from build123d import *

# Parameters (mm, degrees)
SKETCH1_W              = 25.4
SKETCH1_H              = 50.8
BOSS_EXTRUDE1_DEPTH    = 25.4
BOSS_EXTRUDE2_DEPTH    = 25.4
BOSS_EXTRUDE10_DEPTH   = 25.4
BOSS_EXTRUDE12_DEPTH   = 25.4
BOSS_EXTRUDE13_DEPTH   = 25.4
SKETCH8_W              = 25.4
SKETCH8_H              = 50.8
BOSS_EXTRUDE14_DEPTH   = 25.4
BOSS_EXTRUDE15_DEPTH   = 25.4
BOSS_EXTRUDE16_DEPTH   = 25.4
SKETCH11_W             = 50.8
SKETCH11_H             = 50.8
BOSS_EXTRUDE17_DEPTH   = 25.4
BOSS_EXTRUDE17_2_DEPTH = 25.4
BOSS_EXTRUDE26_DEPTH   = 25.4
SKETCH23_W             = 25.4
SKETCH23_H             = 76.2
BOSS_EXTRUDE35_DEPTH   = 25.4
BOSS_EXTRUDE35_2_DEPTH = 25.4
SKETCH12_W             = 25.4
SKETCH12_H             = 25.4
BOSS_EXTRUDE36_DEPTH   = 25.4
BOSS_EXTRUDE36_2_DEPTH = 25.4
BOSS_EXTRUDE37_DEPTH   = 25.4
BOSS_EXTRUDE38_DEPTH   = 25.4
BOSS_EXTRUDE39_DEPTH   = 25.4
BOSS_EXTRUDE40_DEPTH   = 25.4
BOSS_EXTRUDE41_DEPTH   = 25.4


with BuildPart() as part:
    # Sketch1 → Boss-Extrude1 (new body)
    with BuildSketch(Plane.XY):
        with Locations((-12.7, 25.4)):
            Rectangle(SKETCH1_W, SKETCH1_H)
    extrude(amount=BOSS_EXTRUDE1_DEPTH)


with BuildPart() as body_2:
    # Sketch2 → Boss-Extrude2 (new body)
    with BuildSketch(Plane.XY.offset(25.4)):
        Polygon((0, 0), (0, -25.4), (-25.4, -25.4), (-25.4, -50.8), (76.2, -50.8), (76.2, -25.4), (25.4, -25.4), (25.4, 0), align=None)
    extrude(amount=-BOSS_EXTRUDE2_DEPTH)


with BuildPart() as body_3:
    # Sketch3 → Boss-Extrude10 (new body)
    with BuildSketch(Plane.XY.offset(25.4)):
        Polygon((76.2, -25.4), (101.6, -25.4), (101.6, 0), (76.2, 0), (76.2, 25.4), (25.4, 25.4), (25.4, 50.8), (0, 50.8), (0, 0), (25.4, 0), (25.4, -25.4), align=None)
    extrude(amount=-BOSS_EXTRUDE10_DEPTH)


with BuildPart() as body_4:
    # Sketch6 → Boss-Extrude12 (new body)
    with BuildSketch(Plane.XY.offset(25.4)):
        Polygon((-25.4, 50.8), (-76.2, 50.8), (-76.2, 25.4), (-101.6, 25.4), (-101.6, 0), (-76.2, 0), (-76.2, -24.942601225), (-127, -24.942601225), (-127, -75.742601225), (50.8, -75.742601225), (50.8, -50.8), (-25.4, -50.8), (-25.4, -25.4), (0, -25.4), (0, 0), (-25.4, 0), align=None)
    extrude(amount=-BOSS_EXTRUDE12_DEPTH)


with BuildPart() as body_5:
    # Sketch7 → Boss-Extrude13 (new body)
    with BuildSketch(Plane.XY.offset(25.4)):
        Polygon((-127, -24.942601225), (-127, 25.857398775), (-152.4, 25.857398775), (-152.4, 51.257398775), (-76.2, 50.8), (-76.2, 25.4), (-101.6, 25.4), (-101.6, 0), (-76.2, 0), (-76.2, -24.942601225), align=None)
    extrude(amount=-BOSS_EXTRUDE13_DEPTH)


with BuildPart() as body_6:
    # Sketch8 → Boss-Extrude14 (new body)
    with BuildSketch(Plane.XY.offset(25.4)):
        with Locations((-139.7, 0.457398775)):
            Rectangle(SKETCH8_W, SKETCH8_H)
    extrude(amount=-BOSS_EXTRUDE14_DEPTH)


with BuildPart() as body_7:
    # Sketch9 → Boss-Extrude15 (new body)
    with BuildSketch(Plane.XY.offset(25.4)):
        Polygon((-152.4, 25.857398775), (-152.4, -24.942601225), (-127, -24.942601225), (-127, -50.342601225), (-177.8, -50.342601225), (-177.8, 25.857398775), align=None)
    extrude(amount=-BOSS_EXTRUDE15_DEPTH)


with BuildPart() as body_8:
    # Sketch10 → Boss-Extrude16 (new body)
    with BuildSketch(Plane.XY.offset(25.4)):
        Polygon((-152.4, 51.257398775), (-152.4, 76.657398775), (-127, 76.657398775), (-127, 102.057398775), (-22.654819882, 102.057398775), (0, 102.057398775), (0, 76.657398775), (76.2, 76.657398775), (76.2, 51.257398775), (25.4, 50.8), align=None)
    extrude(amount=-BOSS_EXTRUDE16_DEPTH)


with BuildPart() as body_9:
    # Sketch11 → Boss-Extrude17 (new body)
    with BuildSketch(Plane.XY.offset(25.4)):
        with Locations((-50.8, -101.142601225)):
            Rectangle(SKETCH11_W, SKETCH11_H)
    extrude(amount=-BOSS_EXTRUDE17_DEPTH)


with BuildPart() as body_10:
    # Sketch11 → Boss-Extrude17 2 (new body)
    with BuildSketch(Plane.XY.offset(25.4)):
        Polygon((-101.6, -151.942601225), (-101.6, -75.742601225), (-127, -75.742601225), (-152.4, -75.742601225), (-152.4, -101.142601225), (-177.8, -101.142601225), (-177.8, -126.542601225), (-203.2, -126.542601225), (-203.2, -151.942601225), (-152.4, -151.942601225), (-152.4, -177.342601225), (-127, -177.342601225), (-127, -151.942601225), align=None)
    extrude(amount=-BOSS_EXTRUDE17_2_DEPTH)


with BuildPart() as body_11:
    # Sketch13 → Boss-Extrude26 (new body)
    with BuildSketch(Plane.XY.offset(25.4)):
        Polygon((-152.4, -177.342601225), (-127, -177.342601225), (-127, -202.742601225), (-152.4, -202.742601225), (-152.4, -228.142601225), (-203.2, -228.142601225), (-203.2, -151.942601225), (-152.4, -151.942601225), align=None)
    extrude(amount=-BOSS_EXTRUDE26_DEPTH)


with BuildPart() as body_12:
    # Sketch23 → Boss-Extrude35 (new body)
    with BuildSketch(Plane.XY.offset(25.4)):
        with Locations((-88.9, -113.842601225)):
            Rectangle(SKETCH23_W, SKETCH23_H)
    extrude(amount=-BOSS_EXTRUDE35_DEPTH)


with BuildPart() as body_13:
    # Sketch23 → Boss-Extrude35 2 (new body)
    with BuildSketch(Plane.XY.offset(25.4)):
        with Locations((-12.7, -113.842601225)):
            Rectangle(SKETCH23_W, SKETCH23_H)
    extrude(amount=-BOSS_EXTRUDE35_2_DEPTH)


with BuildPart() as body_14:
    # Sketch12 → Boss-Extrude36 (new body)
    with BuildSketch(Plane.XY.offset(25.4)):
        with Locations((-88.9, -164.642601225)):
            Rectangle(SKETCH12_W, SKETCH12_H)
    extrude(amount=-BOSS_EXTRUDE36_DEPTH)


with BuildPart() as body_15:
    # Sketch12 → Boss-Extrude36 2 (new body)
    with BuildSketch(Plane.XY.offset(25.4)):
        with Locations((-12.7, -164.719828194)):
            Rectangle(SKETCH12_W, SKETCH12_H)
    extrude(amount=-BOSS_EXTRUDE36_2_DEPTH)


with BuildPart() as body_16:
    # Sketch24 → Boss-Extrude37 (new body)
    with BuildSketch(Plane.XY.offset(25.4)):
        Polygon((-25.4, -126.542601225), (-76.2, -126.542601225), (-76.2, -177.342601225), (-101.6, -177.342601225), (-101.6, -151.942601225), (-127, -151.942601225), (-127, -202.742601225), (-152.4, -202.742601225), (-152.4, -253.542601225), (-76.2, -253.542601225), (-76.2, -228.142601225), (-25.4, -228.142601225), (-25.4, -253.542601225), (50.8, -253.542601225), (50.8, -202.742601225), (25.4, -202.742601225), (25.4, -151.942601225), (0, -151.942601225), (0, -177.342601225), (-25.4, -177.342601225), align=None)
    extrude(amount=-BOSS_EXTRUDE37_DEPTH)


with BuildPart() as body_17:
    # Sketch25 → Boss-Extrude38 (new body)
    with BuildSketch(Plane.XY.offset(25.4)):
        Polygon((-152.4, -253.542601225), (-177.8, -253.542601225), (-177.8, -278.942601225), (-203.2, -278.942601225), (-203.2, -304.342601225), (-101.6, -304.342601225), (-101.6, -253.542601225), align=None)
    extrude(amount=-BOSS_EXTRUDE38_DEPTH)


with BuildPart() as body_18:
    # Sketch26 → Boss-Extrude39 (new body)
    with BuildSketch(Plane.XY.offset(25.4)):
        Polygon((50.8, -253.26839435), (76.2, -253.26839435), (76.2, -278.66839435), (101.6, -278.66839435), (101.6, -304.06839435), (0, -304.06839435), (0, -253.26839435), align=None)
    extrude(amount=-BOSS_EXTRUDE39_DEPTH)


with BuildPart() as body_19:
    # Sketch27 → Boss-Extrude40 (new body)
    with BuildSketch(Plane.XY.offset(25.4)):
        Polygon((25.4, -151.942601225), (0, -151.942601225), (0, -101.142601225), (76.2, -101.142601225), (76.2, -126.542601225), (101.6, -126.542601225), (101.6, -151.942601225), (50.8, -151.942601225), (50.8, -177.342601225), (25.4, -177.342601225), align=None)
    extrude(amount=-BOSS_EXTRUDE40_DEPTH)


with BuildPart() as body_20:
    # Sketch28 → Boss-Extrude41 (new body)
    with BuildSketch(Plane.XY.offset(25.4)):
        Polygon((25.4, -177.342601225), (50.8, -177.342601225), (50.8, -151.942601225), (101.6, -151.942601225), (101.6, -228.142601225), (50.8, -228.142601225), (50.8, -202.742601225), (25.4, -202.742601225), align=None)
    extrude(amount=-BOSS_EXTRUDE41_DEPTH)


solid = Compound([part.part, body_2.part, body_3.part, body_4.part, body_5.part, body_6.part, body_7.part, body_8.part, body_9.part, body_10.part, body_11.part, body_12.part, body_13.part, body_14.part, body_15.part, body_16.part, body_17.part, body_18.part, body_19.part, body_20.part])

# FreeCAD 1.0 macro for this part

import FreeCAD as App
import Part
import Sketcher
Q = App.Units.Quantity


def add_polygon(sketch, points):
    """Adds a closed chain of lines whose ends are joined by coincident constraints."""
    first, n = sketch.GeometryCount, len(points)
    for a, b in zip(points, points[1:] + points[:1]):
        sketch.addGeometry(Part.LineSegment(App.Vector(*a, 0), App.Vector(*b, 0)), False)
    for i in range(n):
        sketch.addConstraint(Sketcher.Constraint("Coincident", first + i, 2, first + (i + 1) % n, 1))

doc = App.newDocument("Part")
body = doc.addObject("PartDesign::Body", "Body")

sketch1 = doc.addObject("Sketcher::SketchObject", "Sketch")
body.addObject(sketch1)
sketch1.AttachmentSupport = (doc.XY_Plane, [""])
sketch1.MapMode = "FlatFace"
add_polygon(sketch1, [(-25, 51), (-25, 0), (0, 0), (0, 51)])
sketch1.addConstraint(Sketcher.Constraint("Vertical", 0))
sketch1.addConstraint(Sketcher.Constraint("Horizontal", 1))
sketch1.addConstraint(Sketcher.Constraint("Vertical", 2))
sketch1.addConstraint(Sketcher.Constraint("Horizontal", 3))
sketch1.addConstraint(Sketcher.Constraint("Coincident", 1, 2, -1, 1))
sketch1.addConstraint(Sketcher.Constraint("DistanceX", 1, 1, 1, 2, Q("1 in")))
sketch1.addConstraint(Sketcher.Constraint("DistanceY", 0, 2, 0, 1, Q("2 in")))
pad1 = doc.addObject("PartDesign::Pad", "Pad")
body.addObject(pad1)
pad1.Profile = sketch1
pad1.Length = Q("1 in")
body2 = doc.addObject("PartDesign::Body", "Body001")

sketch2 = doc.addObject("Sketcher::SketchObject", "Sketch001")
body2.addObject(sketch2)
sketch2.AttachmentSupport = (doc.getObject("XY_Plane001"), [""])
sketch2.MapMode = "FlatFace"
sketch2.AttachmentOffset = App.Placement(App.Vector(0, 0, 1 * 25.4), App.Rotation())
add_polygon(sketch2, [(0, 0), (0, -25), (-25, -25), (-25, -51), (76, -51), (76, -25), (25, -25), (25, 0)])
sketch2.addConstraint(Sketcher.Constraint("Vertical", 0))
sketch2.addConstraint(Sketcher.Constraint("Horizontal", 1))
sketch2.addConstraint(Sketcher.Constraint("Vertical", 2))
sketch2.addConstraint(Sketcher.Constraint("Horizontal", 3))
sketch2.addConstraint(Sketcher.Constraint("Vertical", 4))
sketch2.addConstraint(Sketcher.Constraint("Horizontal", 5))
sketch2.addConstraint(Sketcher.Constraint("Vertical", 6))
sketch2.addConstraint(Sketcher.Constraint("Horizontal", 7))
sketch2.addConstraint(Sketcher.Constraint("Coincident", 7, 2, -1, 1))
sketch2.addConstraint(Sketcher.Constraint("Symmetric", 1, 2, 5, 2, -2))
sketch2.addConstraint(Sketcher.Constraint("Equal", 7, 0))
sketch2.addConstraint(Sketcher.Constraint("Equal", 0, 2))
sketch2.addConstraint(Sketcher.Constraint("DistanceX", 1, 2, 1, 1, Q("1 in")))
sketch2.addConstraint(Sketcher.Constraint("DistanceX", 3, 1, 3, 2, Q("4 in")))
pad2 = doc.addObject("PartDesign::Pad", "Pad001")
body2.addObject(pad2)
pad2.Profile = sketch2
pad2.Length = Q("1 in")
pad2.Reversed = True
body3 = doc.addObject("PartDesign::Body", "Body002")

sketch3 = doc.addObject("Sketcher::SketchObject", "Sketch002")
body3.addObject(sketch3)
sketch3.AttachmentSupport = (doc.getObject("XY_Plane002"), [""])
sketch3.MapMode = "FlatFace"
sketch3.AttachmentOffset = App.Placement(App.Vector(0, 0, 1 * 25.4), App.Rotation())
add_polygon(sketch3, [(102, -25), (102, 0), (76, 0), (76, 25), (25, 25), (25, 51), (0, 51), (0, 0), (25, 0), (25, -25)])
sketch3.addConstraint(Sketcher.Constraint("Vertical", 0))
sketch3.addConstraint(Sketcher.Constraint("Horizontal", 1))
sketch3.addConstraint(Sketcher.Constraint("Vertical", 2))
sketch3.addConstraint(Sketcher.Constraint("Horizontal", 3))
sketch3.addConstraint(Sketcher.Constraint("Vertical", 4))
sketch3.addConstraint(Sketcher.Constraint("Horizontal", 5))
sketch3.addConstraint(Sketcher.Constraint("Vertical", 6))
sketch3.addConstraint(Sketcher.Constraint("Horizontal", 7))
sketch3.addConstraint(Sketcher.Constraint("Vertical", 8))
sketch3.addConstraint(Sketcher.Constraint("Horizontal", 9))
sketch3.addConstraint(Sketcher.Constraint("Coincident", 6, 2, -1, 1))
sketch3.addConstraint(Sketcher.Constraint("Symmetric", 3, 2, 8, 2, -1))
sketch3.addConstraint(Sketcher.Constraint("PointOnObject", 0, 2, -1))
sketch3.addConstraint(Sketcher.Constraint("Equal", 1, 5))
sketch3.addConstraint(Sketcher.Constraint("Equal", 7, 0))
sketch3.addConstraint(Sketcher.Constraint("Equal", 2, 4))
sketch3.addConstraint(Sketcher.Constraint("Equal", 3, 6))
sketch3.addConstraint(Sketcher.Constraint("DistanceX", 1, 2, 1, 1, Q("1 in")))
pad3 = doc.addObject("PartDesign::Pad", "Pad002")
body3.addObject(pad3)
pad3.Profile = sketch3
pad3.Length = Q("1 in")
pad3.Reversed = True
body4 = doc.addObject("PartDesign::Body", "Body003")

sketch4 = doc.addObject("Sketcher::SketchObject", "Sketch003")
body4.addObject(sketch4)
sketch4.AttachmentSupport = (doc.getObject("XY_Plane003"), [""])
sketch4.MapMode = "FlatFace"
sketch4.AttachmentOffset = App.Placement(App.Vector(0, 0, 1 * 25.4), App.Rotation())
add_polygon(sketch4, [(-25, 51), (-76, 51), (-76, 25), (-102, 25), (-102, 0), (-76, 0), (-76, -25), (-127, -25), (-127, -76), (51, -76), (51, -51), (-25, -51), (-25, -25), (0, -25), (0, 0), (-25, 0)])
sketch4.addConstraint(Sketcher.Constraint("Horizontal", 0))
sketch4.addConstraint(Sketcher.Constraint("Vertical", 1))
sketch4.addConstraint(Sketcher.Constraint("Horizontal", 2))
sketch4.addConstraint(Sketcher.Constraint("Vertical", 3))
sketch4.addConstraint(Sketcher.Constraint("Horizontal", 4))
sketch4.addConstraint(Sketcher.Constraint("Vertical", 5))
sketch4.addConstraint(Sketcher.Constraint("Horizontal", 6))
sketch4.addConstraint(Sketcher.Constraint("Vertical", 7))
sketch4.addConstraint(Sketcher.Constraint("Horizontal", 8))
sketch4.addConstraint(Sketcher.Constraint("Vertical", 9))
sketch4.addConstraint(Sketcher.Constraint("Horizontal", 10))
sketch4.addConstraint(Sketcher.Constraint("Vertical", 11))
sketch4.addConstraint(Sketcher.Constraint("Horizontal", 12))
sketch4.addConstraint(Sketcher.Constraint("Vertical", 13))
sketch4.addConstraint(Sketcher.Constraint("Horizontal", 14))
sketch4.addConstraint(Sketcher.Constraint("Vertical", 15))
sketch4.addConstraint(Sketcher.Constraint("Coincident", 13, 2, -1, 1))
sketch4.addConstraint(Sketcher.Constraint("Symmetric", 10, 2, 15, 2, -1))
sketch4.addConstraint(Sketcher.Constraint("PointOnObject", 3, 2, -1))
sketch4.addConstraint(Sketcher.Constraint("Vertical", 1, 2, 4, 2))
sketch4.addConstraint(Sketcher.Constraint("Equal", 0, 6))
sketch4.addConstraint(Sketcher.Constraint("Equal", 4, 12))
sketch4.addConstraint(Sketcher.Constraint("Equal", 14, 1))
sketch4.addConstraint(Sketcher.Constraint("Equal", 1, 3))
sketch4.addConstraint(Sketcher.Constraint("Equal", 6, 7))
sketch4.addConstraint(Sketcher.Constraint("Equal", 5, 9))
sketch4.addConstraint(Sketcher.Constraint("Equal", 3, 11))
sketch4.addConstraint(Sketcher.Constraint("DistanceX", 0, 2, 0, 1, Q("2 in")))
sketch4.addConstraint(Sketcher.Constraint("DistanceX", 8, 1, 8, 2, Q("7 in")))
sketch4.addConstraint(Sketcher.Constraint("DistanceY", 5, 2, 5, 1, Q("24.942601 mm")))
pad4 = doc.addObject("PartDesign::Pad", "Pad003")
body4.addObject(pad4)
pad4.Profile = sketch4
pad4.Length = Q("1 in")
pad4.Reversed = True
body5 = doc.addObject("PartDesign::Body", "Body004")

sketch5 = doc.addObject("Sketcher::SketchObject", "Sketch004")
body5.addObject(sketch5)
sketch5.AttachmentSupport = (doc.getObject("XY_Plane004"), [""])
sketch5.MapMode = "FlatFace"
sketch5.AttachmentOffset = App.Placement(App.Vector(0, 0, 1 * 25.4), App.Rotation())
add_polygon(sketch5, [(-127, 26), (-127, -25), (-76, -25), (-76, 0), (-102, 0), (-102, 25), (-76, 25), (-76, 51), (-152, 51), (-152, 26)])
sketch5.addConstraint(Sketcher.Constraint("Vertical", 0))
sketch5.addConstraint(Sketcher.Constraint("Horizontal", 1))
sketch5.addConstraint(Sketcher.Constraint("Vertical", 2))
sketch5.addConstraint(Sketcher.Constraint("Horizontal", 3))
sketch5.addConstraint(Sketcher.Constraint("Vertical", 4))
sketch5.addConstraint(Sketcher.Constraint("Horizontal", 5))
sketch5.addConstraint(Sketcher.Constraint("Vertical", 6))
sketch5.addConstraint(Sketcher.Constraint("Vertical", 8))
sketch5.addConstraint(Sketcher.Constraint("Horizontal", 9))
sketch5.addConstraint(Sketcher.Constraint("PointOnObject", 2, 2, -1))
sketch5.addConstraint(Sketcher.Constraint("Vertical", 2, 2, 5, 2))
sketch5.addConstraint(Sketcher.Constraint("Equal", 5, 9))
sketch5.addConstraint(Sketcher.Constraint("Equal", 1, 0))
sketch5.addConstraint(Sketcher.Constraint("Equal", 9, 4))
sketch5.addConstraint(Sketcher.Constraint("Equal", 4, 6))
sketch5.addConstraint(Sketcher.Constraint("Equal", 6, 8))
sketch5.addConstraint(Sketcher.Constraint("DistanceX", 1, 1, 1, 2, Q("2 in")))
sketch5.addConstraint(Sketcher.Constraint("DistanceX", 3, 2, 3, 1, Q("1 in")))
sketch5.addConstraint(Sketcher.Constraint("DistanceX", 0, 2, -1, 1, Q("5 in")))
sketch5.addConstraint(Sketcher.Constraint("DistanceY", 2, 1, 2, 2, Q("24.942601 mm")))
pad5 = doc.addObject("PartDesign::Pad", "Pad004")
body5.addObject(pad5)
pad5.Profile = sketch5
pad5.Length = Q("1 in")
pad5.Reversed = True
body6 = doc.addObject("PartDesign::Body", "Body005")

sketch6 = doc.addObject("Sketcher::SketchObject", "Sketch005")
body6.addObject(sketch6)
sketch6.AttachmentSupport = (doc.getObject("XY_Plane005"), [""])
sketch6.MapMode = "FlatFace"
sketch6.AttachmentOffset = App.Placement(App.Vector(0, 0, 1 * 25.4), App.Rotation())
add_polygon(sketch6, [(-152, 26), (-152, -25), (-127, -25), (-127, 26)])
sketch6.addConstraint(Sketcher.Constraint("Vertical", 0))
sketch6.addConstraint(Sketcher.Constraint("Horizontal", 1))
sketch6.addConstraint(Sketcher.Constraint("Vertical", 2))
sketch6.addConstraint(Sketcher.Constraint("Horizontal", 3))
sketch6.addConstraint(Sketcher.Constraint("DistanceX", 1, 1, 1, 2, Q("1 in")))
sketch6.addConstraint(Sketcher.Constraint("DistanceY", 0, 2, 0, 1, Q("2 in")))
sketch6.addConstraint(Sketcher.Constraint("DistanceX", 0, 2, -1, 1, Q("6 in")))
sketch6.addConstraint(Sketcher.Constraint("DistanceY", 0, 2, -1, 1, Q("24.942601 mm")))
pad6 = doc.addObject("PartDesign::Pad", "Pad005")
body6.addObject(pad6)
pad6.Profile = sketch6
pad6.Length = Q("1 in")
pad6.Reversed = True
body7 = doc.addObject("PartDesign::Body", "Body006")

sketch7 = doc.addObject("Sketcher::SketchObject", "Sketch006")
body7.addObject(sketch7)
sketch7.AttachmentSupport = (doc.getObject("XY_Plane006"), [""])
sketch7.MapMode = "FlatFace"
sketch7.AttachmentOffset = App.Placement(App.Vector(0, 0, 1 * 25.4), App.Rotation())
add_polygon(sketch7, [(-152, -25), (-152, 26), (-178, 26), (-178, -50), (-127, -50), (-127, -25)])
sketch7.addConstraint(Sketcher.Constraint("Vertical", 0))
sketch7.addConstraint(Sketcher.Constraint("Horizontal", 1))
sketch7.addConstraint(Sketcher.Constraint("Vertical", 2))
sketch7.addConstraint(Sketcher.Constraint("Horizontal", 3))
sketch7.addConstraint(Sketcher.Constraint("Vertical", 4))
sketch7.addConstraint(Sketcher.Constraint("Horizontal", 5))
sketch7.addConstraint(Sketcher.Constraint("Equal", 1, 5))
sketch7.addConstraint(Sketcher.Constraint("Equal", 3, 0))
sketch7.addConstraint(Sketcher.Constraint("Equal", 5, 4))
sketch7.addConstraint(Sketcher.Constraint("DistanceX", 1, 2, 1, 1, Q("1 in")))
sketch7.addConstraint(Sketcher.Constraint("DistanceX", 0, 2, -1, 1, Q("6 in")))
sketch7.addConstraint(Sketcher.Constraint("DistanceY", -1, 1, 0, 2, Q("25.857399 mm")))
pad7 = doc.addObject("PartDesign::Pad", "Pad006")
body7.addObject(pad7)
pad7.Profile = sketch7
pad7.Length = Q("1 in")
pad7.Reversed = True
body8 = doc.addObject("PartDesign::Body", "Body007")

sketch8 = doc.addObject("Sketcher::SketchObject", "Sketch007")
body8.addObject(sketch8)
sketch8.AttachmentSupport = (doc.getObject("XY_Plane007"), [""])
sketch8.MapMode = "FlatFace"
sketch8.AttachmentOffset = App.Placement(App.Vector(0, 0, 1 * 25.4), App.Rotation())
add_polygon(sketch8, [(-152, 77), (-152, 51), (25, 51), (76, 51), (76, 77), (0, 77), (0, 102), (-127, 102), (-127, 77)])
sketch8.addConstraint(Sketcher.Constraint("Vertical", 0))
sketch8.addConstraint(Sketcher.Constraint("Vertical", 3))
sketch8.addConstraint(Sketcher.Constraint("Horizontal", 4))
sketch8.addConstraint(Sketcher.Constraint("Vertical", 5))
sketch8.addConstraint(Sketcher.Constraint("Horizontal", 6))
sketch8.addConstraint(Sketcher.Constraint("Vertical", 7))
sketch8.addConstraint(Sketcher.Constraint("Horizontal", 8))
sketch8.addConstraint(Sketcher.Constraint("PointOnObject", 4, 2, -2))
sketch8.addConstraint(Sketcher.Constraint("Horizontal", 0, 2, 2, 2))
sketch8.addConstraint(Sketcher.Constraint("Horizontal", 4, 2, 7, 2))
sketch8.addConstraint(Sketcher.Constraint("Equal", 8, 0))
sketch8.addConstraint(Sketcher.Constraint("Equal", 3, 5))
sketch8.addConstraint(Sketcher.Constraint("DistanceX", 4, 2, 4, 1, Q("3 in")))
sketch8.addConstraint(Sketcher.Constraint("DistanceX", 6, 2, 6, 1, Q("5 in")))
sketch8.addConstraint(Sketcher.Constraint("DistanceX", 8, 2, 8, 1, Q("1 in")))
sketch8.addConstraint(Sketcher.Constraint("DistanceX", -1, 1, 1, 2, Q("1 in")))
sketch8.addConstraint(Sketcher.Constraint("DistanceY", -1, 1, 1, 2, Q("2 in")))
sketch8.addConstraint(Sketcher.Constraint("DistanceY", -1, 1, 0, 2, Q("51.257399 mm")))
pad8 = doc.addObject("PartDesign::Pad", "Pad007")
body8.addObject(pad8)
pad8.Profile = sketch8
pad8.Length = Q("1 in")
pad8.Reversed = True
body9 = doc.addObject("PartDesign::Body", "Body008")

sketch9 = doc.addObject("Sketcher::SketchObject", "Sketch008")
body9.addObject(sketch9)
sketch9.AttachmentSupport = (doc.getObject("XY_Plane008"), [""])
sketch9.MapMode = "FlatFace"
sketch9.AttachmentOffset = App.Placement(App.Vector(0, 0, 1 * 25.4), App.Rotation())
add_polygon(sketch9, [(-76, -76), (-76, -127), (-25, -127), (-25, -76)])
sketch9.addConstraint(Sketcher.Constraint("Vertical", 0))
sketch9.addConstraint(Sketcher.Constraint("Horizontal", 1))
sketch9.addConstraint(Sketcher.Constraint("Vertical", 2))
sketch9.addConstraint(Sketcher.Constraint("Horizontal", 3))
sketch9.addConstraint(Sketcher.Constraint("Equal", 3, 0))
sketch9.addConstraint(Sketcher.Constraint("DistanceX", 1, 1, 1, 2, Q("2 in")))
sketch9.addConstraint(Sketcher.Constraint("DistanceX", 0, 2, -1, 1, Q("3 in")))
sketch9.addConstraint(Sketcher.Constraint("DistanceY", 0, 2, -1, 1, Q("126.542601 mm")))
pad9 = doc.addObject("PartDesign::Pad", "Pad008")
body9.addObject(pad9)
pad9.Profile = sketch9
pad9.Length = Q("1 in")
pad9.Reversed = True
body10 = doc.addObject("PartDesign::Body", "Body009")

sketch10 = doc.addObject("Sketcher::SketchObject", "Sketch009")
body10.addObject(sketch10)
sketch10.AttachmentSupport = (doc.getObject("XY_Plane009"), [""])
sketch10.MapMode = "FlatFace"
sketch10.AttachmentOffset = App.Placement(App.Vector(0, 0, 1 * 25.4), App.Rotation())
add_polygon(sketch10, [(-102, -152), (-102, -76), (-152, -76), (-152, -101), (-178, -101), (-178, -127), (-203, -127), (-203, -152), (-152, -152), (-152, -177), (-127, -177), (-127, -152)])
sketch10.addConstraint(Sketcher.Constraint("Vertical", 0))
sketch10.addConstraint(Sketcher.Constraint("Horizontal", 1))
sketch10.addConstraint(Sketcher.Constraint("Vertical", 2))
sketch10.addConstraint(Sketcher.Constraint("Horizontal", 3))
sketch10.addConstraint(Sketcher.Constraint("Vertical", 4))
sketch10.addConstraint(Sketcher.Constraint("Horizontal", 5))
sketch10.addConstraint(Sketcher.Constraint("Vertical", 6))
sketch10.addConstraint(Sketcher.Constraint("Horizontal", 7))
sketch10.addConstraint(Sketcher.Constraint("Vertical", 8))
sketch10.addConstraint(Sketcher.Constraint("Horizontal", 9))
sketch10.addConstraint(Sketcher.Constraint("Vertical", 10))
sketch10.addConstraint(Sketcher.Constraint("Horizontal", 11))
sketch10.addConstraint(Sketcher.Constraint("Horizontal", 7, 2, 10, 2))
sketch10.addConstraint(Sketcher.Constraint("Vertical", 2, 2, 7, 2))
sketch10.addConstraint(Sketcher.Constraint("Equal", 3, 5))
sketch10.addConstraint(Sketcher.Constraint("Equal", 1, 7))
sketch10.addConstraint(Sketcher.Constraint("Equal", 5, 9))
sketch10.addConstraint(Sketcher.Constraint("Equal", 11, 2))
sketch10.addConstraint(Sketcher.Constraint("Equal", 2, 4))
sketch10.addConstraint(Sketcher.Constraint("Equal", 4, 6))
sketch10.addConstraint(Sketcher.Constraint("Equal", 6, 8))
sketch10.addConstraint(Sketcher.Constraint("DistanceX", 1, 2, 1, 1, Q("2 in")))
sketch10.addConstraint(Sketcher.Constraint("DistanceX", 0, 2, -1, 1, Q("4 in")))
sketch10.addConstraint(Sketcher.Constraint("DistanceY", 0, 2, -1, 1, Q("75.742601 mm")))
pad10 = doc.addObject("PartDesign::Pad", "Pad009")
body10.addObject(pad10)
pad10.Profile = sketch10
pad10.Length = Q("1 in")
pad10.Reversed = True
body11 = doc.addObject("PartDesign::Body", "Body010")

sketch11 = doc.addObject("Sketcher::SketchObject", "Sketch010")
body11.addObject(sketch11)
sketch11.AttachmentSupport = (doc.getObject("XY_Plane010"), [""])
sketch11.MapMode = "FlatFace"
sketch11.AttachmentOffset = App.Placement(App.Vector(0, 0, 1 * 25.4), App.Rotation())
add_polygon(sketch11, [(-127, -177), (-152, -177), (-152, -152), (-203, -152), (-203, -228), (-152, -228), (-152, -203), (-127, -203)])
sketch11.addConstraint(Sketcher.Constraint("Horizontal", 0))
sketch11.addConstraint(Sketcher.Constraint("Vertical", 1))
sketch11.addConstraint(Sketcher.Constraint("Horizontal", 2))
sketch11.addConstraint(Sketcher.Constraint("Vertical", 3))
sketch11.addConstraint(Sketcher.Constraint("Horizontal", 4))
sketch11.addConstraint(Sketcher.Constraint("Vertical", 5))
sketch11.addConstraint(Sketcher.Constraint("Horizontal", 6))
sketch11.addConstraint(Sketcher.Constraint("Vertical", 7))
sketch11.addConstraint(Sketcher.Constraint("Vertical", 1, 2, 4, 2))
sketch11.addConstraint(Sketcher.Constraint("Equal", 6, 1))
sketch11.addConstraint(Sketcher.Constraint("Equal", 1, 5))
sketch11.addConstraint(Sketcher.Constraint("Equal", 5, 7))
sketch11.addConstraint(Sketcher.Constraint("DistanceX", 0, 2, 0, 1, Q("1 in")))
sketch11.addConstraint(Sketcher.Constraint("DistanceX", 2, 2, 2, 1, Q("2 in")))
sketch11.addConstraint(Sketcher.Constraint("DistanceX", 0, 2, -1, 1, Q("6 in")))
sketch11.addConstraint(Sketcher.Constraint("DistanceY", 0, 2, -1, 1, Q("177.342601 mm")))
pad11 = doc.addObject("PartDesign::Pad", "Pad010")
body11.addObject(pad11)
pad11.Profile = sketch11
pad11.Length = Q("1 in")
pad11.Reversed = True
body12 = doc.addObject("PartDesign::Body", "Body011")

sketch12 = doc.addObject("Sketcher::SketchObject", "Sketch011")
body12.addObject(sketch12)
sketch12.AttachmentSupport = (doc.getObject("XY_Plane011"), [""])
sketch12.MapMode = "FlatFace"
sketch12.AttachmentOffset = App.Placement(App.Vector(0, 0, 1 * 25.4), App.Rotation())
add_polygon(sketch12, [(-102, -76), (-102, -152), (-76, -152), (-76, -76)])
sketch12.addConstraint(Sketcher.Constraint("Vertical", 0))
sketch12.addConstraint(Sketcher.Constraint("Horizontal", 1))
sketch12.addConstraint(Sketcher.Constraint("Vertical", 2))
sketch12.addConstraint(Sketcher.Constraint("Horizontal", 3))
sketch12.addConstraint(Sketcher.Constraint("DistanceX", 1, 1, 1, 2, Q("1 in")))
sketch12.addConstraint(Sketcher.Constraint("DistanceY", 0, 2, 0, 1, Q("3 in")))
sketch12.addConstraint(Sketcher.Constraint("DistanceX", 0, 2, -1, 1, Q("4 in")))
sketch12.addConstraint(Sketcher.Constraint("DistanceY", 0, 2, -1, 1, Q("151.942601 mm")))
pad12 = doc.addObject("PartDesign::Pad", "Pad011")
body12.addObject(pad12)
pad12.Profile = sketch12
pad12.Length = Q("1 in")
pad12.Reversed = True
body13 = doc.addObject("PartDesign::Body", "Body012")

sketch13 = doc.addObject("Sketcher::SketchObject", "Sketch012")
body13.addObject(sketch13)
sketch13.AttachmentSupport = (doc.getObject("XY_Plane012"), [""])
sketch13.MapMode = "FlatFace"
sketch13.AttachmentOffset = App.Placement(App.Vector(0, 0, 1 * 25.4), App.Rotation())
add_polygon(sketch13, [(-25, -76), (-25, -152), (0, -152), (0, -76)])
sketch13.addConstraint(Sketcher.Constraint("Vertical", 0))
sketch13.addConstraint(Sketcher.Constraint("Horizontal", 1))
sketch13.addConstraint(Sketcher.Constraint("Vertical", 2))
sketch13.addConstraint(Sketcher.Constraint("Horizontal", 3))
sketch13.addConstraint(Sketcher.Constraint("PointOnObject", 1, 2, -2))
sketch13.addConstraint(Sketcher.Constraint("DistanceX", 1, 1, 1, 2, Q("1 in")))
sketch13.addConstraint(Sketcher.Constraint("DistanceY", 0, 2, 0, 1, Q("3 in")))
sketch13.addConstraint(Sketcher.Constraint("DistanceY", 0, 2, -1, 1, Q("151.942601 mm")))
pad13 = doc.addObject("PartDesign::Pad", "Pad012")
body13.addObject(pad13)
pad13.Profile = sketch13
pad13.Length = Q("1 in")
pad13.Reversed = True
body14 = doc.addObject("PartDesign::Body", "Body013")

sketch14 = doc.addObject("Sketcher::SketchObject", "Sketch013")
body14.addObject(sketch14)
sketch14.AttachmentSupport = (doc.getObject("XY_Plane013"), [""])
sketch14.MapMode = "FlatFace"
sketch14.AttachmentOffset = App.Placement(App.Vector(0, 0, 1 * 25.4), App.Rotation())
add_polygon(sketch14, [(-102, -152), (-102, -177), (-76, -177), (-76, -152)])
sketch14.addConstraint(Sketcher.Constraint("Vertical", 0))
sketch14.addConstraint(Sketcher.Constraint("Horizontal", 1))
sketch14.addConstraint(Sketcher.Constraint("Vertical", 2))
sketch14.addConstraint(Sketcher.Constraint("Horizontal", 3))
sketch14.addConstraint(Sketcher.Constraint("Equal", 3, 0))
sketch14.addConstraint(Sketcher.Constraint("DistanceX", 1, 1, 1, 2, Q("1 in")))
sketch14.addConstraint(Sketcher.Constraint("DistanceX", 0, 2, -1, 1, Q("4 in")))
sketch14.addConstraint(Sketcher.Constraint("DistanceY", 0, 2, -1, 1, Q("177.342601 mm")))
pad14 = doc.addObject("PartDesign::Pad", "Pad013")
body14.addObject(pad14)
pad14.Profile = sketch14
pad14.Length = Q("1 in")
pad14.Reversed = True
body15 = doc.addObject("PartDesign::Body", "Body014")

sketch15 = doc.addObject("Sketcher::SketchObject", "Sketch014")
body15.addObject(sketch15)
sketch15.AttachmentSupport = (doc.getObject("XY_Plane014"), [""])
sketch15.MapMode = "FlatFace"
sketch15.AttachmentOffset = App.Placement(App.Vector(0, 0, 1 * 25.4), App.Rotation())
add_polygon(sketch15, [(-25, -152), (-25, -177), (0, -177), (0, -152)])
sketch15.addConstraint(Sketcher.Constraint("Vertical", 0))
sketch15.addConstraint(Sketcher.Constraint("Horizontal", 1))
sketch15.addConstraint(Sketcher.Constraint("Vertical", 2))
sketch15.addConstraint(Sketcher.Constraint("Horizontal", 3))
sketch15.addConstraint(Sketcher.Constraint("PointOnObject", 1, 2, -2))
sketch15.addConstraint(Sketcher.Constraint("Equal", 3, 0))
sketch15.addConstraint(Sketcher.Constraint("DistanceX", 1, 1, 1, 2, Q("1 in")))
sketch15.addConstraint(Sketcher.Constraint("DistanceY", 0, 2, -1, 1, Q("177.419828 mm")))
pad15 = doc.addObject("PartDesign::Pad", "Pad014")
body15.addObject(pad15)
pad15.Profile = sketch15
pad15.Length = Q("1 in")
pad15.Reversed = True
body16 = doc.addObject("PartDesign::Body", "Body015")

sketch16 = doc.addObject("Sketcher::SketchObject", "Sketch015")
body16.addObject(sketch16)
sketch16.AttachmentSupport = (doc.getObject("XY_Plane015"), [""])
sketch16.MapMode = "FlatFace"
sketch16.AttachmentOffset = App.Placement(App.Vector(0, 0, 1 * 25.4), App.Rotation())
add_polygon(sketch16, [(-25, -127), (-76, -127), (-76, -177), (-102, -177), (-102, -152), (-127, -152), (-127, -203), (-152, -203), (-152, -254), (-76, -254), (-76, -228), (-25, -228), (-25, -254), (51, -254), (51, -203), (25, -203), (25, -152), (0, -152), (0, -177), (-25, -177)])
sketch16.addConstraint(Sketcher.Constraint("Horizontal", 0))
sketch16.addConstraint(Sketcher.Constraint("Vertical", 1))
sketch16.addConstraint(Sketcher.Constraint("Horizontal", 2))
sketch16.addConstraint(Sketcher.Constraint("Vertical", 3))
sketch16.addConstraint(Sketcher.Constraint("Horizontal", 4))
sketch16.addConstraint(Sketcher.Constraint("Vertical", 5))
sketch16.addConstraint(Sketcher.Constraint("Horizontal", 6))
sketch16.addConstraint(Sketcher.Constraint("Vertical", 7))
sketch16.addConstraint(Sketcher.Constraint("Horizontal", 8))
sketch16.addConstraint(Sketcher.Constraint("Vertical", 9))
sketch16.addConstraint(Sketcher.Constraint("Horizontal", 10))
sketch16.addConstraint(Sketcher.Constraint("Vertical", 11))
sketch16.addConstraint(Sketcher.Constraint("Horizontal", 12))
sketch16.addConstraint(Sketcher.Constraint("Vertical", 13))
sketch16.addConstraint(Sketcher.Constraint("Horizontal", 14))
sketch16.addConstraint(Sketcher.Constraint("Vertical", 15))
sketch16.addConstraint(Sketcher.Constraint("Horizontal", 16))
sketch16.addConstraint(Sketcher.Constraint("Vertical", 17))
sketch16.addConstraint(Sketcher.Constraint("Horizontal", 18))
sketch16.addConstraint(Sketcher.Constraint("Vertical", 19))
sketch16.addConstraint(Sketcher.Constraint("PointOnObject", 16, 2, -2))
sketch16.addConstraint(Sketcher.Constraint("Horizontal", 8, 2, 11, 2))
sketch16.addConstraint(Sketcher.Constraint("Horizontal", 6, 2, 13, 2))
sketch16.addConstraint(Sketcher.Constraint("Horizontal", 4, 2, 15, 2))
sketch16.addConstraint(Sketcher.Constraint("Horizontal", 2, 2, 17, 2))
sketch16.addConstraint(Sketcher.Constraint("Vertical", 1, 2, 8, 2))
sketch16.addConstraint(Sketcher.Constraint("Vertical", 11, 2, 18, 2))
sketch16.addConstraint(Sketcher.Constraint("Equal", 2, 4))
sketch16.addConstraint(Sketcher.Constraint("Equal", 4, 6))
sketch16.addConstraint(Sketcher.Constraint("Equal", 8, 12))
sketch16.addConstraint(Sketcher.Constraint("Equal", 6, 14))
sketch16.addConstraint(Sketcher.Constraint("Equal", 14, 16))
sketch16.addConstraint(Sketcher.Constraint("Equal", 10, 1))
sketch16.addConstraint(Sketcher.Constraint("Equal", 18, 3))
sketch16.addConstraint(Sketcher.Constraint("Equal", 1, 5))
sketch16.addConstraint(Sketcher.Constraint("Equal", 5, 7))
sketch16.addConstraint(Sketcher.Constraint("Equal", 3, 9))
sketch16.addConstraint(Sketcher.Constraint("DistanceX", 0, 2, 0, 1, Q("2 in")))
sketch16.addConstraint(Sketcher.Constraint("DistanceX", 2, 2, 2, 1, Q("1 in")))
sketch16.addConstraint(Sketcher.Constraint("DistanceY", 0, 2, -1, 1, Q("126.542601 mm")))
pad16 = doc.addObject("PartDesign::Pad", "Pad015")
body16.addObject(pad16)
pad16.Profile = sketch16
pad16.Length = Q("1 in")
pad16.Reversed = True
body17 = doc.addObject("PartDesign::Body", "Body016")

sketch17 = doc.addObject("Sketcher::SketchObject", "Sketch016")
body17.addObject(sketch17)
sketch17.AttachmentSupport = (doc.getObject("XY_Plane016"), [""])
sketch17.MapMode = "FlatFace"
sketch17.AttachmentOffset = App.Placement(App.Vector(0, 0, 1 * 25.4), App.Rotation())
add_polygon(sketch17, [(-178, -254), (-178, -279), (-203, -279), (-203, -304), (-102, -304), (-102, -254)])
sketch17.addConstraint(Sketcher.Constraint("Vertical", 0))
sketch17.addConstraint(Sketcher.Constraint("Horizontal", 1))
sketch17.addConstraint(Sketcher.Constraint("Vertical", 2))
sketch17.addConstraint(Sketcher.Constraint("Horizontal", 3))
sketch17.addConstraint(Sketcher.Constraint("Vertical", 4))
sketch17.addConstraint(Sketcher.Constraint("Horizontal", 5))
sketch17.addConstraint(Sketcher.Constraint("Equal", 1, 0))
sketch17.addConstraint(Sketcher.Constraint("Equal", 0, 2))
sketch17.addConstraint(Sketcher.Constraint("DistanceX", 1, 2, 1, 1, Q("1 in")))
sketch17.addConstraint(Sketcher.Constraint("DistanceX", 3, 1, 3, 2, Q("4 in")))
sketch17.addConstraint(Sketcher.Constraint("DistanceX", 0, 2, -1, 1, Q("7 in")))
sketch17.addConstraint(Sketcher.Constraint("DistanceY", 0, 2, -1, 1, Q("278.942601 mm")))
pad17 = doc.addObject("PartDesign::Pad", "Pad016")
body17.addObject(pad17)
pad17.Profile = sketch17
pad17.Length = Q("1 in")
pad17.Reversed = True
body18 = doc.addObject("PartDesign::Body", "Body017")

sketch18 = doc.addObject("Sketcher::SketchObject", "Sketch017")
body18.addObject(sketch18)
sketch18.AttachmentSupport = (doc.getObject("XY_Plane017"), [""])
sketch18.MapMode = "FlatFace"
sketch18.AttachmentOffset = App.Placement(App.Vector(0, 0, 1 * 25.4), App.Rotation())
add_polygon(sketch18, [(76, -253), (0, -253), (0, -304), (102, -304), (102, -279), (76, -279)])
sketch18.addConstraint(Sketcher.Constraint("Horizontal", 0))
sketch18.addConstraint(Sketcher.Constraint("Vertical", 1))
sketch18.addConstraint(Sketcher.Constraint("Horizontal", 2))
sketch18.addConstraint(Sketcher.Constraint("Vertical", 3))
sketch18.addConstraint(Sketcher.Constraint("Horizontal", 4))
sketch18.addConstraint(Sketcher.Constraint("Vertical", 5))
sketch18.addConstraint(Sketcher.Constraint("PointOnObject", 0, 2, -2))
sketch18.addConstraint(Sketcher.Constraint("Equal", 4, 3))
sketch18.addConstraint(Sketcher.Constraint("Equal", 3, 5))
sketch18.addConstraint(Sketcher.Constraint("DistanceX", 0, 2, 0, 1, Q("3 in")))
sketch18.addConstraint(Sketcher.Constraint("DistanceX", 2, 1, 2, 2, Q("4 in")))
sketch18.addConstraint(Sketcher.Constraint("DistanceY", 0, 2, -1, 1, Q("253.268394 mm")))
pad18 = doc.addObject("PartDesign::Pad", "Pad017")
body18.addObject(pad18)
pad18.Profile = sketch18
pad18.Length = Q("1 in")
pad18.Reversed = True
body19 = doc.addObject("PartDesign::Body", "Body018")

sketch19 = doc.addObject("Sketcher::SketchObject", "Sketch018")
body19.addObject(sketch19)
sketch19.AttachmentSupport = (doc.getObject("XY_Plane018"), [""])
sketch19.MapMode = "FlatFace"
sketch19.AttachmentOffset = App.Placement(App.Vector(0, 0, 1 * 25.4), App.Rotation())
add_polygon(sketch19, [(0, -152), (25, -152), (25, -177), (51, -177), (51, -152), (102, -152), (102, -127), (76, -127), (76, -101), (0, -101)])
sketch19.addConstraint(Sketcher.Constraint("Horizontal", 0))
sketch19.addConstraint(Sketcher.Constraint("Vertical", 1))
sketch19.addConstraint(Sketcher.Constraint("Horizontal", 2))
sketch19.addConstraint(Sketcher.Constraint("Vertical", 3))
sketch19.addConstraint(Sketcher.Constraint("Horizontal", 4))
sketch19.addConstraint(Sketcher.Constraint("Vertical", 5))
sketch19.addConstraint(Sketcher.Constraint("Horizontal", 6))
sketch19.addConstraint(Sketcher.Constraint("Vertical", 7))
sketch19.addConstraint(Sketcher.Constraint("Horizontal", 8))
sketch19.addConstraint(Sketcher.Constraint("Vertical", 9))
sketch19.addConstraint(Sketcher.Constraint("PointOnObject", 8, 2, -2))
sketch19.addConstraint(Sketcher.Constraint("Horizontal", 0, 2, 3, 2))
sketch19.addConstraint(Sketcher.Constraint("Equal", 0, 2))
sketch19.addConstraint(Sketcher.Constraint("Equal", 2, 6))
sketch19.addConstraint(Sketcher.Constraint("Equal", 6, 1))
sketch19.addConstraint(Sketcher.Constraint("Equal", 3, 5))
sketch19.addConstraint(Sketcher.Constraint("Equal", 5, 7))
sketch19.addConstraint(Sketcher.Constraint("Equal", 4, 9))
sketch19.addConstraint(Sketcher.Constraint("DistanceX", 0, 1, 0, 2, Q("1 in")))
sketch19.addConstraint(Sketcher.Constraint("DistanceY", 0, 2, -1, 1, Q("151.942601 mm")))
pad19 = doc.addObject("PartDesign::Pad", "Pad018")
body19.addObject(pad19)
pad19.Profile = sketch19
pad19.Length = Q("1 in")
pad19.Reversed = True
body20 = doc.addObject("PartDesign::Body", "Body019")

sketch20 = doc.addObject("Sketcher::SketchObject", "Sketch019")
body20.addObject(sketch20)
sketch20.AttachmentSupport = (doc.getObject("XY_Plane019"), [""])
sketch20.MapMode = "FlatFace"
sketch20.AttachmentOffset = App.Placement(App.Vector(0, 0, 1 * 25.4), App.Rotation())
add_polygon(sketch20, [(51, -177), (25, -177), (25, -203), (51, -203), (51, -228), (102, -228), (102, -152), (51, -152)])
sketch20.addConstraint(Sketcher.Constraint("Horizontal", 0))
sketch20.addConstraint(Sketcher.Constraint("Vertical", 1))
sketch20.addConstraint(Sketcher.Constraint("Horizontal", 2))
sketch20.addConstraint(Sketcher.Constraint("Vertical", 3))
sketch20.addConstraint(Sketcher.Constraint("Horizontal", 4))
sketch20.addConstraint(Sketcher.Constraint("Vertical", 5))
sketch20.addConstraint(Sketcher.Constraint("Horizontal", 6))
sketch20.addConstraint(Sketcher.Constraint("Vertical", 7))
sketch20.addConstraint(Sketcher.Constraint("Vertical", 3, 2, 6, 2))
sketch20.addConstraint(Sketcher.Constraint("Equal", 2, 1))
sketch20.addConstraint(Sketcher.Constraint("Equal", 1, 3))
sketch20.addConstraint(Sketcher.Constraint("Equal", 3, 7))
sketch20.addConstraint(Sketcher.Constraint("DistanceX", 0, 2, 0, 1, Q("1 in")))
sketch20.addConstraint(Sketcher.Constraint("DistanceX", 4, 1, 4, 2, Q("2 in")))
sketch20.addConstraint(Sketcher.Constraint("DistanceX", -1, 1, 0, 2, Q("1 in")))
sketch20.addConstraint(Sketcher.Constraint("DistanceY", 0, 2, -1, 1, Q("177.342601 mm")))
pad20 = doc.addObject("PartDesign::Pad", "Pad019")
body20.addObject(pad20)
pad20.Profile = sketch20
pad20.Length = Q("1 in")
pad20.Reversed = True

doc.recompute()
